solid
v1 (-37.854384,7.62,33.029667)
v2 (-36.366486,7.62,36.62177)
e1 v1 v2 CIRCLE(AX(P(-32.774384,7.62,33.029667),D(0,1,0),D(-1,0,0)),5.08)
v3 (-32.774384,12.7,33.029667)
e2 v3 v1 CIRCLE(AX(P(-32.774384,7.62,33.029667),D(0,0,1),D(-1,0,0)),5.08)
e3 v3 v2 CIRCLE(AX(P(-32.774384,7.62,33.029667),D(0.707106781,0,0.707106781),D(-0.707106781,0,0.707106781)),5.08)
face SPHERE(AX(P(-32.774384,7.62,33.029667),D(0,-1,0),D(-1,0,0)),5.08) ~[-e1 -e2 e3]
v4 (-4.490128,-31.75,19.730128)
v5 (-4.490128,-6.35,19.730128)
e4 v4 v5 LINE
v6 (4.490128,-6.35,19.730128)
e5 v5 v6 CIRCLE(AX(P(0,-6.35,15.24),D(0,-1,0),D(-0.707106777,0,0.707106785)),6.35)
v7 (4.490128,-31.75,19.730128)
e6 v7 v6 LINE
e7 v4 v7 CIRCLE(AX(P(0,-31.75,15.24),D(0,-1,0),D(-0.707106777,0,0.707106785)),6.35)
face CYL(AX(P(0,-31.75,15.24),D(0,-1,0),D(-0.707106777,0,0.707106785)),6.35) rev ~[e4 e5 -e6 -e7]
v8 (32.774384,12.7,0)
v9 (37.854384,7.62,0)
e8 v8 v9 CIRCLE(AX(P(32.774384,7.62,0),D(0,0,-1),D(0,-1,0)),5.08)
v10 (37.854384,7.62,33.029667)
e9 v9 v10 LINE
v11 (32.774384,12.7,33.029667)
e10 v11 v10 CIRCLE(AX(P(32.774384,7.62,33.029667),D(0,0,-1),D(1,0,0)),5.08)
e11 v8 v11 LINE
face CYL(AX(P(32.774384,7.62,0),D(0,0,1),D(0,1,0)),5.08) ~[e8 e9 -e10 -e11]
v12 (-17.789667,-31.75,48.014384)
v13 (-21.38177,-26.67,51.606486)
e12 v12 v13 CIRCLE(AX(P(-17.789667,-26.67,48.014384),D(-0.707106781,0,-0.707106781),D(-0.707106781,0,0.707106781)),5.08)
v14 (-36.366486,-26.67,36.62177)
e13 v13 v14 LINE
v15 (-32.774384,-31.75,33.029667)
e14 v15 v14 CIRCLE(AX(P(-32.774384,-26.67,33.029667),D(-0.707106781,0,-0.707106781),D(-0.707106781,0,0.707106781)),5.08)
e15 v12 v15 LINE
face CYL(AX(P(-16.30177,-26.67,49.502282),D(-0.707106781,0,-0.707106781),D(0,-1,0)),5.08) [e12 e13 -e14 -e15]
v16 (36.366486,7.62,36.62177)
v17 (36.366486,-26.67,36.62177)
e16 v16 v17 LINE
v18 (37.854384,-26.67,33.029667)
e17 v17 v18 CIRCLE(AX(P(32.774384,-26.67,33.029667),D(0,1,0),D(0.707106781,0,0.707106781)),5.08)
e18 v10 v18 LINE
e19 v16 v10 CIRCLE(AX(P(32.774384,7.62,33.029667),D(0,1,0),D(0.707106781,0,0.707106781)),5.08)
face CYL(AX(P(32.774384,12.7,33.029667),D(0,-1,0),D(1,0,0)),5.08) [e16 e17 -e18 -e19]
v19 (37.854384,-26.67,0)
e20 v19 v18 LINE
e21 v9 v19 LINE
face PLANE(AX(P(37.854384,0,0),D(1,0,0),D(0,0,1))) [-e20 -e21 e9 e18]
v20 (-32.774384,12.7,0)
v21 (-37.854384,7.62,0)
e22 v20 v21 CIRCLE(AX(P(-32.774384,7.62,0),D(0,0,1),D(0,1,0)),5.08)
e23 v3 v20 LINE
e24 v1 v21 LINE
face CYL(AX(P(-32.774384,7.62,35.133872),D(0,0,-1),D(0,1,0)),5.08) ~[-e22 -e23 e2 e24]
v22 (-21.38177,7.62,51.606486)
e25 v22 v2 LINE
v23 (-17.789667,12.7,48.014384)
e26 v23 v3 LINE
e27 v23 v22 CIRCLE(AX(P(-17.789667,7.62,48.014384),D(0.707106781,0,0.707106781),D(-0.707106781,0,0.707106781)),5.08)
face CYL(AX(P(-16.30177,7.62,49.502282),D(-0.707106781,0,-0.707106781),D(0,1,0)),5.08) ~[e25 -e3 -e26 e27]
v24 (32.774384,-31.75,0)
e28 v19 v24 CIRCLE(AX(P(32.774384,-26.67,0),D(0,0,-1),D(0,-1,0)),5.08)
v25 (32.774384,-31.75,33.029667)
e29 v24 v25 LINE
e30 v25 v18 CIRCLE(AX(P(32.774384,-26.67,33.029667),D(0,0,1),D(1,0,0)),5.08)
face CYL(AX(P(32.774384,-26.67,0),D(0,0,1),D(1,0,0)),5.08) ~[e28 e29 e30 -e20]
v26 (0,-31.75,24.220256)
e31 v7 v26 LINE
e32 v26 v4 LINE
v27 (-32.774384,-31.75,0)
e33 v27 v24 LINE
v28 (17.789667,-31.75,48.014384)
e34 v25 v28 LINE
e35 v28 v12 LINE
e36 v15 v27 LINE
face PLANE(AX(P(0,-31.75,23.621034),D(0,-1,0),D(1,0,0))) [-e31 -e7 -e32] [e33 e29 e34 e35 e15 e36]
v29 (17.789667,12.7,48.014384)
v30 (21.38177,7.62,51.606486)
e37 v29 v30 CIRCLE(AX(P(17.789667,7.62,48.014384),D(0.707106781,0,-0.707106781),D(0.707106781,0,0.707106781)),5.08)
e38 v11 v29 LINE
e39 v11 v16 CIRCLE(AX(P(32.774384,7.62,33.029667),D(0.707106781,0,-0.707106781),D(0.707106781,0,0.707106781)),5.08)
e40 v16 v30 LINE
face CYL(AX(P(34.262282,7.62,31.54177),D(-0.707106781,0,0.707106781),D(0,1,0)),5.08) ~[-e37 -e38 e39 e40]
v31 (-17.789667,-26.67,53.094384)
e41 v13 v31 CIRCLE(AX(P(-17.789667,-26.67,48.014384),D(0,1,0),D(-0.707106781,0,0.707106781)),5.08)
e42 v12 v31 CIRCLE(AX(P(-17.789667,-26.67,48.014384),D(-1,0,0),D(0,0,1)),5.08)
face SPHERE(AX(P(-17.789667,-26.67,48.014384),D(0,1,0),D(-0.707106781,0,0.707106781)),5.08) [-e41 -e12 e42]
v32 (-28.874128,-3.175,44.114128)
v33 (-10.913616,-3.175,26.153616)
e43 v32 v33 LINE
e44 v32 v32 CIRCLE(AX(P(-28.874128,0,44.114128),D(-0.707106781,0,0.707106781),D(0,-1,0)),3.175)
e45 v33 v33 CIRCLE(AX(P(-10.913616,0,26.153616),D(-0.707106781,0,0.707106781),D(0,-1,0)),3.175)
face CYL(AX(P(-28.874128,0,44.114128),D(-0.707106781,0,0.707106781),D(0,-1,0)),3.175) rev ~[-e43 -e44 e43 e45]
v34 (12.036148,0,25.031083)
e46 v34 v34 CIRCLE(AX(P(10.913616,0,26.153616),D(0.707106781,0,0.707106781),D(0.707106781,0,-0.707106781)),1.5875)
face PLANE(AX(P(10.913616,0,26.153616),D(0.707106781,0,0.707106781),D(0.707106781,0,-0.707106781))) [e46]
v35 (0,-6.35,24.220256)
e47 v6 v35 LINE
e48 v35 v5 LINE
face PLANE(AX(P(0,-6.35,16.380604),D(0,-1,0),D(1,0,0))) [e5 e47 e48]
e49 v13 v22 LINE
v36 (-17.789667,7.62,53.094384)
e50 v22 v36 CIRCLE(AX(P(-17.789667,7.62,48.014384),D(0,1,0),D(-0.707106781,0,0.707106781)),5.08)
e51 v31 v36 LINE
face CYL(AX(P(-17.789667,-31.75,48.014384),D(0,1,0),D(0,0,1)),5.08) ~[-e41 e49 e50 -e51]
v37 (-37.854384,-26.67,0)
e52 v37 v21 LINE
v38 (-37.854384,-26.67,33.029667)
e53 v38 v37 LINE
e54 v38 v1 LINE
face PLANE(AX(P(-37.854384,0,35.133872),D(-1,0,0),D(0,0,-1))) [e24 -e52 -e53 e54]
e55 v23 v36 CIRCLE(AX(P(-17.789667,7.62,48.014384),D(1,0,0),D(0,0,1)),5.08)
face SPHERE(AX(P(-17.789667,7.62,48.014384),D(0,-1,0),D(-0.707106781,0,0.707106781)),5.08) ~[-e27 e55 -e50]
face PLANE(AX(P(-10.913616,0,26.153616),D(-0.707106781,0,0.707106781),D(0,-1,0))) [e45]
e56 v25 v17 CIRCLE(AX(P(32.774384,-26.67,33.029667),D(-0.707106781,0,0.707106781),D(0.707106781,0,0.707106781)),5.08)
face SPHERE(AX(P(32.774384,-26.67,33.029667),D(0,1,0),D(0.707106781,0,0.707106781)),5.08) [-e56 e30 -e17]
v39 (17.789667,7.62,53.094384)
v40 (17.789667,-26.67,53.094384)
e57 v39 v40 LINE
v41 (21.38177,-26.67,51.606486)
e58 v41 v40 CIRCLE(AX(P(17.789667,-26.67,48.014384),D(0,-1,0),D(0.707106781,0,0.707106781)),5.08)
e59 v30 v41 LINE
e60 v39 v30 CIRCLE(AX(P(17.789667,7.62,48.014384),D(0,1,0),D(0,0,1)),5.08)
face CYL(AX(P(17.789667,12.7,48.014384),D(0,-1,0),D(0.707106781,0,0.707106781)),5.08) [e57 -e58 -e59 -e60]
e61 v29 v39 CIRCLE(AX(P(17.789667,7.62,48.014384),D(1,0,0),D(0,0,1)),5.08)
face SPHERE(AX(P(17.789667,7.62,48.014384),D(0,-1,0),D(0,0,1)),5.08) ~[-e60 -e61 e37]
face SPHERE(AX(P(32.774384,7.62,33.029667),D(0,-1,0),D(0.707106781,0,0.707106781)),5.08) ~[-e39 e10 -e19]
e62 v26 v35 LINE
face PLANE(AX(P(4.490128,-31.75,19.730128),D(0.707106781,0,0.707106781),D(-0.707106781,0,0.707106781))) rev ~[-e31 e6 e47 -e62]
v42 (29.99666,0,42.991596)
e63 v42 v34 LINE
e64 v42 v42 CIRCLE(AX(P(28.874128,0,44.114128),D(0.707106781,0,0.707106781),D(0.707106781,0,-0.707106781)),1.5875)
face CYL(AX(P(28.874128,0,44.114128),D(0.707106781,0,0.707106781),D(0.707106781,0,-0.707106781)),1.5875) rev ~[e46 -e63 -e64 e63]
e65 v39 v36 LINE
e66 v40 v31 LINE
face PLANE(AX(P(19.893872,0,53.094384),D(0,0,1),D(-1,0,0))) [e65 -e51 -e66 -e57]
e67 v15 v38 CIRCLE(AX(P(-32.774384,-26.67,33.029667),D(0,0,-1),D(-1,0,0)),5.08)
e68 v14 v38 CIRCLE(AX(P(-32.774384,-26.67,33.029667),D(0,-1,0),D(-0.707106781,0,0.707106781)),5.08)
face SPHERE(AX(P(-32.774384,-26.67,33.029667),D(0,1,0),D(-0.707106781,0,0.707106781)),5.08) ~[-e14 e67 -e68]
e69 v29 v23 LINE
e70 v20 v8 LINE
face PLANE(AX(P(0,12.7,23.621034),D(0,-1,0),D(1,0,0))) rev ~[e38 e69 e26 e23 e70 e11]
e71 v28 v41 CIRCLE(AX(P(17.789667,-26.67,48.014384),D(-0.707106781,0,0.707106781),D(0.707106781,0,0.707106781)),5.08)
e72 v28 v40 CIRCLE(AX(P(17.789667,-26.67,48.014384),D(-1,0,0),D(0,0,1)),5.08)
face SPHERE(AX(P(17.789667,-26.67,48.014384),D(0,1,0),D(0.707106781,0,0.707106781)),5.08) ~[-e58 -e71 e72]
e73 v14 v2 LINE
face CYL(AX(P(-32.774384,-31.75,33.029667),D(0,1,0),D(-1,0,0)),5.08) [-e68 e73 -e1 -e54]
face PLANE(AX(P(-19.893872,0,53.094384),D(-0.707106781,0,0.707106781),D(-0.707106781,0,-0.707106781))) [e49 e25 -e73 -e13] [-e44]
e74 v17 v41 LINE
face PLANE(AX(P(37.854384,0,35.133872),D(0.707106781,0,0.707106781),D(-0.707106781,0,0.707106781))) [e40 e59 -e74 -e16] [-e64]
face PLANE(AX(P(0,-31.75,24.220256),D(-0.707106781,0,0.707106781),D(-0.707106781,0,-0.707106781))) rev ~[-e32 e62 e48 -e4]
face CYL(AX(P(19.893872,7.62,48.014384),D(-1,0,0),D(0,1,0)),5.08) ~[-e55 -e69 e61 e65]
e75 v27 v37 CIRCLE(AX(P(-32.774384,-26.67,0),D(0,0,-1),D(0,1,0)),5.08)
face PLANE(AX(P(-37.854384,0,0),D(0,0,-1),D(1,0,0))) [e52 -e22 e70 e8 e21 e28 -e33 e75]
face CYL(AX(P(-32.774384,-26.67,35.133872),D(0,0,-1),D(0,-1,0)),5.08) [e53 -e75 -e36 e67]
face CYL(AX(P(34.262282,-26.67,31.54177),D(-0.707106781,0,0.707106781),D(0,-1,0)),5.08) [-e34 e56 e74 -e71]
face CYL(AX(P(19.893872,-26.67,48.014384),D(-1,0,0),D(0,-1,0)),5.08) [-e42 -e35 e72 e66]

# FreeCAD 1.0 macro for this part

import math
import FreeCAD as App
import Part
import Sketcher

V = App.Vector
Q = App.Units.Quantity


def edges_at(feature, points):
    """Names of the edges that pass closest to the given points."""
    edges = feature.Shape.Edges
    near = lambda p: min(range(len(edges)), key=lambda i: edges[i].distToShape(Part.Vertex(*p))[0])
    return sorted({f"Edge{near(p) + 1}" for p in points})


def add_polygon(sketch, points):
    """Adds a closed chain of lines whose ends are joined by coincident constraints."""
    first, n = sketch.GeometryCount, len(points)
    for a, b in zip(points, points[1:] + points[:1]):
        sketch.addGeometry(Part.LineSegment(App.Vector(*a, 0), App.Vector(*b, 0)), False)
    for i in range(n):
        sketch.addConstraint(Sketcher.Constraint("Coincident", first + i, 2, first + (i + 1) % n, 1))

doc = App.newDocument("Part")
body = doc.addObject("PartDesign::Body", "Body")

# Sketch on XZ plane
sketch1 = body.newObject("Sketcher::SketchObject", "Sketch")
sketch1.AttachmentSupport = (doc.getObject("XZ_Plane"), [""])
sketch1.MapMode = "FlatFace"
add_polygon(sketch1, [(-38, 0), (38, 0), (38, 35), (20, 53), (-20, 53), (-38, 35)])  # lines 0-5
sketch1.addConstraint(Sketcher.Constraint("Horizontal", 0))
sketch1.addConstraint(Sketcher.Constraint("Vertical", 1))
sketch1.addConstraint(Sketcher.Constraint("Horizontal", 3))
sketch1.addConstraint(Sketcher.Constraint("Vertical", 5))
sketch1.addConstraint(Sketcher.Constraint("Symmetric", 0, 2, 5, 2, -1, 1))
sketch1.addConstraint(Sketcher.Constraint("Perpendicular", 2, 4))
sketch1.addConstraint(Sketcher.Constraint("Horizontal", 1, 2, 4, 2))
sketch1.addConstraint(Sketcher.Constraint("Equal", 2, 4))
sketch1.addConstraint(Sketcher.Constraint("Distance", 2, Q("1 in")))
sketch1.addConstraint(Sketcher.Constraint("DistanceX", 0, 1, 0, 2, Q("75.708768 mm")))
sketch1.addConstraint(Sketcher.Constraint("DistanceY", 1, 1, 1, 2, Q("35.133872 mm")))
pad1 = body.newObject("PartDesign::Pad", "Pad")
pad1.Profile = sketch1
pad1.Type = "TwoLengths"
pad1.Length = Q("1.25 in")
pad1.Length2 = Q("0.5 in")

# Sketch on an angled plane
sketch2 = body.newObject("Sketcher::SketchObject", "Sketch001")
sketch2.Placement = App.Placement(V(-36.494128, 0, 36.494128), App.Rotation(V(0, -1, 0), V(0.707106781, 0, 0.707106781), V(-0.707106781, 0, 0.707106781), "ZXY"))
sketch2.addGeometry(Part.Circle(V(0, 10.8, 0), V(0, 0, 1), 3.2), False)
sketch2.addConstraint(Sketcher.Constraint("PointOnObject", 0, 3, -2))
sketch2.addConstraint(Sketcher.Constraint("Diameter", 0, Q("0.25 in")))
sketch2.addConstraint(Sketcher.Constraint("DistanceY", -1, 1, 0, 3, Q("10.776307 mm")))
pocket1 = body.newObject("PartDesign::Pocket", "Pocket")
pocket1.Profile = sketch2
pocket1.Length = Q("1 in")

# Sketch on an angled plane
sketch3 = body.newObject("Sketcher::SketchObject", "Sketch002")
sketch3.Placement = App.Placement(V(36.494128, 0, 36.494128), App.Rotation(V(0.707106781, 0, -0.707106781), V(0, 0.999999999, 0), V(0.707106781, 0, 0.707106781), "ZXY"))
sketch3.addGeometry(Part.Circle(V(-10.8, 0, 0), V(0, 0, 1), 1.6), False)
sketch3.addConstraint(Sketcher.Constraint("PointOnObject", 0, 3, -1))
sketch3.addConstraint(Sketcher.Constraint("Diameter", 0, Q("0.125 in")))
sketch3.addConstraint(Sketcher.Constraint("DistanceX", 0, 3, -1, 1, Q("10.776307 mm")))
pocket2 = body.newObject("PartDesign::Pocket", "Pocket001")
pocket2.Profile = sketch3
pocket2.Length = Q("1 in")

# Sketch on XZ plane
sketch4 = body.newObject("Sketcher::SketchObject", "Sketch003")
sketch4.AttachmentSupport = (doc.getObject("XZ_Plane"), [""])
sketch4.MapMode = "FlatFace"
sketch4.AttachmentOffset = App.Placement(V(0, 0, 1.25 * 25.4), App.Rotation())
sketch4.addGeometry(Part.LineSegment(V(0, 24, 0), V(-4, 20, 0)), False)
sketch4.addGeometry(Part.ArcOfCircle(Part.Circle(V(0, 15, 0), V(0, 0, 1), 6), math.radians(135), math.radians(405)), False)
sketch4.addGeometry(Part.LineSegment(V(4, 20, 0), V(0, 24, 0)), False)
sketch4.addConstraint(Sketcher.Constraint("Tangent", 0, 2, 1, 1))
sketch4.addConstraint(Sketcher.Constraint("Tangent", 1, 2, 2, 1))
sketch4.addConstraint(Sketcher.Constraint("Coincident", 2, 2, 0, 1))
sketch4.addConstraint(Sketcher.Constraint("Symmetric", 0, 2, 1, 2, -2))
sketch4.addConstraint(Sketcher.Constraint("Perpendicular", 0, 2))
sketch4.addConstraint(Sketcher.Constraint("Radius", 1, Q("0.25 in")))
sketch4.addConstraint(Sketcher.Constraint("DistanceY", -1, 1, 1, 3, Q("0.6 in")))
pocket3 = body.newObject("PartDesign::Pocket", "Pocket002")
pocket3.Profile = sketch4
pocket3.Length = Q("1 in")
doc.recompute()

fillet = body.newObject("PartDesign::Fillet", "Fillet")
fillet.Base = (pocket3, edges_at(pocket3, [
    (-37.854, 12.7, 17.567),
    (-28.874, 12.7, 44.114),
    (0, 12.7, 53.094),
    (28.874, 12.7, 44.114),
    (37.854, 12.7, 17.567),
    (-19.894, -9.525, 53.094),
    (-37.854, -9.525, 35.134),
    (-28.874, -31.75, 44.114),
    (-37.854, -31.75, 17.567),
    (0, -31.75, 53.094),
    (19.894, -9.525, 53.094),
    (28.874, -31.75, 44.114),
    (37.854, -31.75, 17.567),
    (37.854, -9.525, 35.134),
]))
fillet.Radius = Q("0.2 in")

doc.recompute()
